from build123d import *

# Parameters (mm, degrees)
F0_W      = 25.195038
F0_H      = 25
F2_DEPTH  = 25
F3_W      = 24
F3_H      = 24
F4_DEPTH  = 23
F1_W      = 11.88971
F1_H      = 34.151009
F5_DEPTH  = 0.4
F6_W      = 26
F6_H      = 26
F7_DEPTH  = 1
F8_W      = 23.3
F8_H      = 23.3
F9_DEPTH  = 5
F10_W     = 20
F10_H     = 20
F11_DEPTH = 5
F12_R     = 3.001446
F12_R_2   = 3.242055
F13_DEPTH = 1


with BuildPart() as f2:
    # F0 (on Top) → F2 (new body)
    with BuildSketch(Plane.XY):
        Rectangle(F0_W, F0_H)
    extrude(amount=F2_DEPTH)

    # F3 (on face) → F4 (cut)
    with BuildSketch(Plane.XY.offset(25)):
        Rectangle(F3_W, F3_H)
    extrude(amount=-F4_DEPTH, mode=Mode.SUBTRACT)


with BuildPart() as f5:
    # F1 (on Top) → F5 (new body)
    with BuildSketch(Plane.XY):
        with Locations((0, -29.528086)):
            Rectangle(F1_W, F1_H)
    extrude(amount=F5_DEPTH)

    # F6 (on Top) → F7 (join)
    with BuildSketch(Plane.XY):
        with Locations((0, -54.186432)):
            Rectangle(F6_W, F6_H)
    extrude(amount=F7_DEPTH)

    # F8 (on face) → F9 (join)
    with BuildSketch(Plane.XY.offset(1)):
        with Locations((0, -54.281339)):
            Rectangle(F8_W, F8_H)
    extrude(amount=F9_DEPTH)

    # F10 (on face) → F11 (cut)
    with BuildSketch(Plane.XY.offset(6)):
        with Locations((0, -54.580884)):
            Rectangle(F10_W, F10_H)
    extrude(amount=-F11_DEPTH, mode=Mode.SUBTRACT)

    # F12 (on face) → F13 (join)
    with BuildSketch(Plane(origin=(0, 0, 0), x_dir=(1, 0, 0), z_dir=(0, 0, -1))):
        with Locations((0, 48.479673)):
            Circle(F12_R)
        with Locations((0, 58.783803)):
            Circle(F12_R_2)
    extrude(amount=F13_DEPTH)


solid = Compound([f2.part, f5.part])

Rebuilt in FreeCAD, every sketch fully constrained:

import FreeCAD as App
import Part
import Sketcher

V = App.Vector


def add_polygon(sketch, points):
    """Adds a closed chain of lines whose ends are joined by coincident constraints."""
    first, n = sketch.GeometryCount, len(points)
    for a, b in zip(points, points[1:] + points[:1]):
        sketch.addGeometry(Part.LineSegment(App.Vector(*a, 0), App.Vector(*b, 0)), False)
    for i in range(n):
        sketch.addConstraint(Sketcher.Constraint("Coincident", first + i, 2, first + (i + 1) % n, 1))

doc = App.newDocument("Part")
body = doc.addObject("PartDesign::Body", "Body")

# Sketch on XY plane
sketch1 = body.newObject("Sketcher::SketchObject", "Sketch")
sketch1.AttachmentSupport = (doc.getObject("XY_Plane"), [""])
sketch1.MapMode = "FlatFace"
add_polygon(sketch1, [(-13, 12), (-13, -12), (13, -12), (13, 12)])  # lines 0-3
sketch1.addConstraint([
    Sketcher.Constraint("Vertical", 0),
    Sketcher.Constraint("Horizontal", 1),
    Sketcher.Constraint("Vertical", 2),
    Sketcher.Constraint("Horizontal", 3),
    Sketcher.Constraint("Symmetric", 0, 2, 2, 2, -1, 1),
    Sketcher.Constraint("DistanceY", 0, 2, 0, 1, 25.0),
    Sketcher.Constraint("DistanceX", 1, 1, 1, 2, 25.195038),
])
pad1 = body.newObject("PartDesign::Pad", "Pad")
pad1.Profile = sketch1
pad1.Length = 25

# Sketch on XY plane
sketch2 = body.newObject("Sketcher::SketchObject", "Sketch001")
sketch2.AttachmentSupport = (doc.getObject("XY_Plane"), [""])
sketch2.MapMode = "FlatFace"
sketch2.AttachmentOffset = App.Placement(V(0, 0, 25), App.Rotation())
add_polygon(sketch2, [(-12, 12), (-12, -12), (12, -12), (12, 12)])  # lines 0-3
sketch2.addConstraint([
    Sketcher.Constraint("Vertical", 0),
    Sketcher.Constraint("Horizontal", 1),
    Sketcher.Constraint("Vertical", 2),
    Sketcher.Constraint("Horizontal", 3),
    Sketcher.Constraint("Symmetric", 0, 2, 2, 2, -1, 1),
    Sketcher.Constraint("Equal", 3, 0),
    Sketcher.Constraint("DistanceX", 1, 1, 1, 2, 24.0),
])
pocket1 = body.newObject("PartDesign::Pocket", "Pocket")
pocket1.Profile = sketch2
pocket1.Length = 23
body2 = doc.addObject("PartDesign::Body", "Body001")

# Sketch on XY plane
sketch3 = body2.newObject("Sketcher::SketchObject", "Sketch002")
sketch3.AttachmentSupport = (doc.getObject("XY_Plane001"), [""])
sketch3.MapMode = "FlatFace"
add_polygon(sketch3, [(-6, -12), (-6, -47), (6, -47), (6, -12)])  # lines 0-3
sketch3.addConstraint([
    Sketcher.Constraint("Vertical", 0),
    Sketcher.Constraint("Horizontal", 1),
    Sketcher.Constraint("Vertical", 2),
    Sketcher.Constraint("Horizontal", 3),
    Sketcher.Constraint("DistanceX", 1, 1, 1, 2, 11.88971),
    Sketcher.Constraint("DistanceY", 0, 2, 0, 1, 34.151009),
    Sketcher.Constraint("DistanceY", 0, 2, -1, 1, 46.603591),
    Sketcher.Constraint("DistanceX", 0, 2, -1, 1, 5.944855),
])
pad2 = body2.newObject("PartDesign::Pad", "Pad001")
pad2.Profile = sketch3
pad2.Length = 0.4

# Sketch on XY plane
sketch4 = body2.newObject("Sketcher::SketchObject", "Sketch003")
sketch4.AttachmentSupport = (doc.getObject("XY_Plane001"), [""])
sketch4.MapMode = "FlatFace"
add_polygon(sketch4, [(-13, -41), (-13, -67), (13, -67), (13, -41)])  # lines 0-3
sketch4.addConstraint([
    Sketcher.Constraint("Vertical", 0),
    Sketcher.Constraint("Horizontal", 1),
    Sketcher.Constraint("Vertical", 2),
    Sketcher.Constraint("Horizontal", 3),
    Sketcher.Constraint("Equal", 3, 0),
    Sketcher.Constraint("DistanceX", 1, 1, 1, 2, 26.0),
    Sketcher.Constraint("DistanceX", 0, 2, -1, 1, 13.0),
    Sketcher.Constraint("DistanceY", 0, 2, -1, 1, 67.186432),
])
pad3 = body2.newObject("PartDesign::Pad", "Pad002")
pad3.Profile = sketch4
pad3.Length = 1

# Sketch on XY plane
sketch5 = body2.newObject("Sketcher::SketchObject", "Sketch004")
sketch5.AttachmentSupport = (doc.getObject("XY_Plane001"), [""])
sketch5.MapMode = "FlatFace"
sketch5.AttachmentOffset = App.Placement(V(0, 0, 1), App.Rotation())
add_polygon(sketch5, [(-12, -43), (-12, -66), (12, -66), (12, -43)])  # lines 0-3
sketch5.addConstraint([
    Sketcher.Constraint("Vertical", 0),
    Sketcher.Constraint("Horizontal", 1),
    Sketcher.Constraint("Vertical", 2),
    Sketcher.Constraint("Horizontal", 3),
    Sketcher.Constraint("Equal", 3, 0),
    Sketcher.Constraint("DistanceX", 1, 1, 1, 2, 23.3),
    Sketcher.Constraint("DistanceX", 0, 2, -1, 1, 11.65),
    Sketcher.Constraint("DistanceY", 0, 2, -1, 1, 65.931339),
])
pad4 = body2.newObject("PartDesign::Pad", "Pad003")
pad4.Profile = sketch5
pad4.Length = 5

# Sketch on XY plane
sketch6 = body2.newObject("Sketcher::SketchObject", "Sketch005")
sketch6.AttachmentSupport = (doc.getObject("XY_Plane001"), [""])
sketch6.MapMode = "FlatFace"
sketch6.AttachmentOffset = App.Placement(V(0, 0, 6), App.Rotation())
add_polygon(sketch6, [(-10, -45), (-10, -65), (10, -65), (10, -45)])  # lines 0-3
sketch6.addConstraint([
    Sketcher.Constraint("Vertical", 0),
    Sketcher.Constraint("Horizontal", 1),
    Sketcher.Constraint("Vertical", 2),
    Sketcher.Constraint("Horizontal", 3),
    Sketcher.Constraint("Equal", 3, 0),
    Sketcher.Constraint("DistanceX", 1, 1, 1, 2, 20.0),
    Sketcher.Constraint("DistanceX", 0, 2, -1, 1, 10.0),
    Sketcher.Constraint("DistanceY", 0, 2, -1, 1, 64.580884),
])
pocket2 = body2.newObject("PartDesign::Pocket", "Pocket001")
pocket2.Profile = sketch6
pocket2.Length = 5

# Sketch on XY plane
sketch7 = body2.newObject("Sketcher::SketchObject", "Sketch006")
sketch7.AttachmentSupport = (doc.getObject("XY_Plane001"), [""])
sketch7.MapMode = "FlatFace"
sketch7.addGeometry([
    Part.Circle(V(0, -48.5, 0), V(0, 0, 1), 3),
    Part.Circle(V(0, -58.8, 0), V(0, 0, 1), 3.2),
], False)
sketch7.addConstraint([
    Sketcher.Constraint("PointOnObject", 0, 3, -2),
    Sketcher.Constraint("PointOnObject", 1, 3, -2),
    Sketcher.Constraint("Diameter", 1, 6.48411),
    Sketcher.Constraint("Diameter", 0, 6.002892),
    Sketcher.Constraint("DistanceY", 1, 3, 0, 3, 10.30413),
    Sketcher.Constraint("DistanceY", 0, 3, -1, 1, 48.479673),
])
pad5 = body2.newObject("PartDesign::Pad", "Pad004")
pad5.Profile = sketch7
pad5.Length = 1
pad5.Reversed = True

doc.recompute()
